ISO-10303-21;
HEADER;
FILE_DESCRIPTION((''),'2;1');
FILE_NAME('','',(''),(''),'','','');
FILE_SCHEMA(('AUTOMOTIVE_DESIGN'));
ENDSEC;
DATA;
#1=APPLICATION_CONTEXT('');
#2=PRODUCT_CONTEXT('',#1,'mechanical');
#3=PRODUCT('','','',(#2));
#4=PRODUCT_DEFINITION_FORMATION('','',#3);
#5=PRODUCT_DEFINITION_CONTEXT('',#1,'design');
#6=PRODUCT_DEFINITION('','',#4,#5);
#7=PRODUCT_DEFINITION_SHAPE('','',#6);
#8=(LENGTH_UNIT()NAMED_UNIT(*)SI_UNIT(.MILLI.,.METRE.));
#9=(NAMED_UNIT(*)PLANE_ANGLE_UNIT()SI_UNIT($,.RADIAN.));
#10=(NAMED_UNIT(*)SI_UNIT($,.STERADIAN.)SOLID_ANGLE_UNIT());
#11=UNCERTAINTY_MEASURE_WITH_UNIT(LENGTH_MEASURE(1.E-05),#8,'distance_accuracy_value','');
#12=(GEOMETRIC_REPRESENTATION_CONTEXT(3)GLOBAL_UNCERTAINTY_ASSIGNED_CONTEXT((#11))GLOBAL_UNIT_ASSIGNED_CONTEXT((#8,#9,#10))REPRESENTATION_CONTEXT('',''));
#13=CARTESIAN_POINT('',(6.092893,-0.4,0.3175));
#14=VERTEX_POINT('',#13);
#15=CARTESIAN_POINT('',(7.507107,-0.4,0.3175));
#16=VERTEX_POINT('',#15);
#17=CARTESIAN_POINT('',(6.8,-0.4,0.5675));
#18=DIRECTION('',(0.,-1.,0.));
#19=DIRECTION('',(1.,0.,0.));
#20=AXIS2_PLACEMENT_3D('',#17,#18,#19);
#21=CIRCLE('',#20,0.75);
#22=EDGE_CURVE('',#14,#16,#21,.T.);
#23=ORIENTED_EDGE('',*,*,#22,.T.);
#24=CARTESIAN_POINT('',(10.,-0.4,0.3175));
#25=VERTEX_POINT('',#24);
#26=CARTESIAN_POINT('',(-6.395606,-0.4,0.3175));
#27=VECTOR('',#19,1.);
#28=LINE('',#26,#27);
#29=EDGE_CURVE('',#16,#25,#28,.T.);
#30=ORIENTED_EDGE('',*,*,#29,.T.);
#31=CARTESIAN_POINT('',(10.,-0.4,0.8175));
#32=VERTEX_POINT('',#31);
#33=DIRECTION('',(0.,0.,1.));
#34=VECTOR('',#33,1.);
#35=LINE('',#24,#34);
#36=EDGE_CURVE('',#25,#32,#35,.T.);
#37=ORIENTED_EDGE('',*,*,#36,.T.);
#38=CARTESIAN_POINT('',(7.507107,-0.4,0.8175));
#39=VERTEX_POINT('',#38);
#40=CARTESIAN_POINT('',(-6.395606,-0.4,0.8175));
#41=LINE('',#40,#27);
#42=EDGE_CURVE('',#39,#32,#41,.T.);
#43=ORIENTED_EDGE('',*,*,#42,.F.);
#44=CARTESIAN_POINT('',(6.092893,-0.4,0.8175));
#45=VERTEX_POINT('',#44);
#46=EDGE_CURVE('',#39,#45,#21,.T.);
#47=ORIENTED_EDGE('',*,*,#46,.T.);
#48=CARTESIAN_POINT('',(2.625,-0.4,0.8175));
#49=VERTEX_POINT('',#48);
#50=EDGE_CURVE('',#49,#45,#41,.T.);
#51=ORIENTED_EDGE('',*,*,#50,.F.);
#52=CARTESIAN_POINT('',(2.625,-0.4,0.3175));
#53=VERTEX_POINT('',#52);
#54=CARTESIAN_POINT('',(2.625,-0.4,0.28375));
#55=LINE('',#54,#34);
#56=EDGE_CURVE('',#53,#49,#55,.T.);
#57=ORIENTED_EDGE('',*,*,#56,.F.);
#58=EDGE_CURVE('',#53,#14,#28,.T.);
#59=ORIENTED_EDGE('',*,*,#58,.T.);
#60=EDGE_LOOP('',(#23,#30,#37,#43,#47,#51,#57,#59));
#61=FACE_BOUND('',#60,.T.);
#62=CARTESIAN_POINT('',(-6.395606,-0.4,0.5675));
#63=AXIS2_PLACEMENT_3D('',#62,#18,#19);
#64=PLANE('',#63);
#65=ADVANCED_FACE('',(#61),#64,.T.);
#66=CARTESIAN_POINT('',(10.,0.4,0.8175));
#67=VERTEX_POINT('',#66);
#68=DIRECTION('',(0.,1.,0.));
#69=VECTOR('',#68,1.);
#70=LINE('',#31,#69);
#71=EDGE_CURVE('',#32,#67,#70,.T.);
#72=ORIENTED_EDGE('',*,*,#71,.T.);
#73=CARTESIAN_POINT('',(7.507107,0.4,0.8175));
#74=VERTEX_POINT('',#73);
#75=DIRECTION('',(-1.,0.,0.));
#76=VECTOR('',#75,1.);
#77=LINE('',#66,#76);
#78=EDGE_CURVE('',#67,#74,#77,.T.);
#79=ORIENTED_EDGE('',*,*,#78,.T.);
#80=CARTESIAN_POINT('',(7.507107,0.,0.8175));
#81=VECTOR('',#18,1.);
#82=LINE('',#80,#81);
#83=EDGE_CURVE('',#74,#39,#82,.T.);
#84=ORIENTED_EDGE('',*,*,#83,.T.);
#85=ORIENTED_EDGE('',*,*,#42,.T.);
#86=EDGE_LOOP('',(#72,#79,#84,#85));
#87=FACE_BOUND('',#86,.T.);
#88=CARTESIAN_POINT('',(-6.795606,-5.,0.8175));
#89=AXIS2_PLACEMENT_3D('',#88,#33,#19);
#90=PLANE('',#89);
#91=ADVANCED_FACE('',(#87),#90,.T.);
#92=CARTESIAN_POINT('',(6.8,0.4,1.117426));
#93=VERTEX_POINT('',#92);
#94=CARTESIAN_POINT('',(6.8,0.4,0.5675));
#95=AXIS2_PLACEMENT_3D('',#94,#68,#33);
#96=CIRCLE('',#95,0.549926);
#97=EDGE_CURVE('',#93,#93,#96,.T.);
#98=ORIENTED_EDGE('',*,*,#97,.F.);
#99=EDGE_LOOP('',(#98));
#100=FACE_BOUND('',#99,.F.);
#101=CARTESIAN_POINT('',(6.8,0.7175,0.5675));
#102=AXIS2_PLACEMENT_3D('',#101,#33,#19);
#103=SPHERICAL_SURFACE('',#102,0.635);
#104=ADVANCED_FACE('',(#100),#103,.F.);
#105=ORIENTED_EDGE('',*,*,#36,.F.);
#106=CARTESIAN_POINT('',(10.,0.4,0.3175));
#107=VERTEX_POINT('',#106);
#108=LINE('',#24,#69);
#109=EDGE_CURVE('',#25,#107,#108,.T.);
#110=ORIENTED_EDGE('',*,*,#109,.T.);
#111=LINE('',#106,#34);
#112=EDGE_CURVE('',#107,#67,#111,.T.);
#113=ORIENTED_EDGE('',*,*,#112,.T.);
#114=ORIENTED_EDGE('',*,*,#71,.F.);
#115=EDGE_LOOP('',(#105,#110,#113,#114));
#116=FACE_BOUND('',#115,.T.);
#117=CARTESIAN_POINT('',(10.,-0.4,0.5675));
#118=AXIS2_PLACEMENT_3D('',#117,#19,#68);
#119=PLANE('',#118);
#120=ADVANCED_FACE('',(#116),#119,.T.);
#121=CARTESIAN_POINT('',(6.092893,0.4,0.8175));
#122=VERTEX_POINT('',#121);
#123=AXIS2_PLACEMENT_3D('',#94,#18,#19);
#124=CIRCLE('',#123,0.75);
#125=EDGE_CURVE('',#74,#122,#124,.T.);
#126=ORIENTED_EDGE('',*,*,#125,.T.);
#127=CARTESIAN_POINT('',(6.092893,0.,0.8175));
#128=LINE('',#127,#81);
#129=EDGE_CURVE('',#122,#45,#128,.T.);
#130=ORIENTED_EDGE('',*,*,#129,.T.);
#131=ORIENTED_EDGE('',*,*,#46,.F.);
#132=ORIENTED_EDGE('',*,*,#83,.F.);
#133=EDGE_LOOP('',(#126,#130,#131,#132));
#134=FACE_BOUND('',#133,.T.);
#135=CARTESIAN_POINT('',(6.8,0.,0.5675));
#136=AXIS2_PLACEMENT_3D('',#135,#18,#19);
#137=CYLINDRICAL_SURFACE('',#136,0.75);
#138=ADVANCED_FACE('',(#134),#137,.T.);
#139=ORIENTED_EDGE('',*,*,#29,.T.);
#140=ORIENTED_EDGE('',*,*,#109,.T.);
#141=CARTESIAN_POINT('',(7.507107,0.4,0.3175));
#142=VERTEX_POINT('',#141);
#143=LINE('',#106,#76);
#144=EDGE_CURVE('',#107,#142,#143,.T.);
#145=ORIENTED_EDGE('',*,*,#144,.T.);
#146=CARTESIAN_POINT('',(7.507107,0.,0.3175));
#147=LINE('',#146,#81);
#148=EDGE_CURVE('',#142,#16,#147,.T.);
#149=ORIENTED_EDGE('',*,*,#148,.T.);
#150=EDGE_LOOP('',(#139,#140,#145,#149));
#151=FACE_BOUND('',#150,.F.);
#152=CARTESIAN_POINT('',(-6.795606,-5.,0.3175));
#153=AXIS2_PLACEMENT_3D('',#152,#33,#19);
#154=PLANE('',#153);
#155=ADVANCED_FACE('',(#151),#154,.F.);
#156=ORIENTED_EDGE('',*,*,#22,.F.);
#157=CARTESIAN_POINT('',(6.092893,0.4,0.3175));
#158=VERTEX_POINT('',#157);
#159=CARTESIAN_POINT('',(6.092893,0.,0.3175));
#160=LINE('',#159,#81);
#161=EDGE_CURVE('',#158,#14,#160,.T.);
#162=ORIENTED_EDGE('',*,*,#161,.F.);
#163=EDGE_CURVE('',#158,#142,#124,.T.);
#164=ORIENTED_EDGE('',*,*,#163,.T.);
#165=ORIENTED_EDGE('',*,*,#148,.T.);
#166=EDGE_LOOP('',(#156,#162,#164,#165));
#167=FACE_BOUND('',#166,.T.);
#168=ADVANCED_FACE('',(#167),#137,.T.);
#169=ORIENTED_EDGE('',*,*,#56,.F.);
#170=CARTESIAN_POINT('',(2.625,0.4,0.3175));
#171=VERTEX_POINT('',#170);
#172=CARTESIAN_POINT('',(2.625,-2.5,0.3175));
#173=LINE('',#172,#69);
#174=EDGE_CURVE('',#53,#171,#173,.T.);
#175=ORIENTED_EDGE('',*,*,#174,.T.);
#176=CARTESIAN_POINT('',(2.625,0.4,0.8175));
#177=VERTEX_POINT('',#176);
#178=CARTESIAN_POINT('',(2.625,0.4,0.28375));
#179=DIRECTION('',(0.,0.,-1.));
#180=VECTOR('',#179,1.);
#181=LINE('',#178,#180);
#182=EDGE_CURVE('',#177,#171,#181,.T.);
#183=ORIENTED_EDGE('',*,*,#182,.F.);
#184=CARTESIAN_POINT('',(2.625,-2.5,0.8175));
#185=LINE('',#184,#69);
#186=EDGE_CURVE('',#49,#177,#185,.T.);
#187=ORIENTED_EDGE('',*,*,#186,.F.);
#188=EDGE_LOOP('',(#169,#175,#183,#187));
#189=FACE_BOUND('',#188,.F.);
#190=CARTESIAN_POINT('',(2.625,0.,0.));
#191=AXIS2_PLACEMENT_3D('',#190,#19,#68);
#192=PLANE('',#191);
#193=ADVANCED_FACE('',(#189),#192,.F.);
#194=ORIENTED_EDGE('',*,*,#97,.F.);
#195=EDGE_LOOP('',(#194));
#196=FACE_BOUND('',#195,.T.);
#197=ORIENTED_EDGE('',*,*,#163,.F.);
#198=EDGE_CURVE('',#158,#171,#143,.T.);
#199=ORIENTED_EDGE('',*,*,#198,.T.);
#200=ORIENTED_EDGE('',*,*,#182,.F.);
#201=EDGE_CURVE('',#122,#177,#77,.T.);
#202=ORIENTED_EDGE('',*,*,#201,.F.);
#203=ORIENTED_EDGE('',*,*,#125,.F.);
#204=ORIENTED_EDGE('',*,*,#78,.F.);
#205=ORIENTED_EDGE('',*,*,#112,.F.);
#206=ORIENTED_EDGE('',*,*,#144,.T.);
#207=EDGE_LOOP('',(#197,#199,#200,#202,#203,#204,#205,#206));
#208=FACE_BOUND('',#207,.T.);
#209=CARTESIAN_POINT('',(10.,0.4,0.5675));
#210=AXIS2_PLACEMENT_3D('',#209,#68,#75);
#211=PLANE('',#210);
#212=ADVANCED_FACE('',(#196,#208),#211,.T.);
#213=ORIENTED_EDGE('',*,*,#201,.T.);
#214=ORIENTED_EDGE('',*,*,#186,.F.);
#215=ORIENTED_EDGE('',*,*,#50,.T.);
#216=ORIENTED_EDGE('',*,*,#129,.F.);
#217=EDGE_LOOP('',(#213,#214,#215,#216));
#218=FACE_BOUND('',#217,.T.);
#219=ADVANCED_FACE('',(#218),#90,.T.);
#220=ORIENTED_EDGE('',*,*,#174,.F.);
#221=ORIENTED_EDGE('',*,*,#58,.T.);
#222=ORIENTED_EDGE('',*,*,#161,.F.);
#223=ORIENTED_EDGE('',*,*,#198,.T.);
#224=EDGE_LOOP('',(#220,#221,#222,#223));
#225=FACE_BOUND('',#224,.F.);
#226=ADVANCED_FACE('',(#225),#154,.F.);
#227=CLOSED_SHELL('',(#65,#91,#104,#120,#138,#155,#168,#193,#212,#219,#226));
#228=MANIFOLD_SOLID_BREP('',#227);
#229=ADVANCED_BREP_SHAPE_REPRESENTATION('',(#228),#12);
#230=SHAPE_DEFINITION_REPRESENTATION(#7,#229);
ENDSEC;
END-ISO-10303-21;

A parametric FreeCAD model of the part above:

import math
import FreeCAD as App
import Part
import Sketcher
from FreeCAD import Vector
Q = App.Units.Quantity


def add_polygon(sketch, points):
    """Adds a closed chain of lines whose ends are joined by coincident constraints."""
    first, n = sketch.GeometryCount, len(points)
    for a, b in zip(points, points[1:] + points[:1]):
        sketch.addGeometry(Part.LineSegment(App.Vector(*a, 0), App.Vector(*b, 0)), False)
    for i in range(n):
        sketch.addConstraint(Sketcher.Constraint("Coincident", first + i, 2, first + (i + 1) % n, 1))

doc = App.newDocument("Part")
params = doc.addObject("Spreadsheet::Sheet", "Params")
for row, (alias, value) in enumerate([
    ("sketch1_height", "10 mm"),
    ("sketch1_width", "0.8 mm"),
    ("pad1_length", "0.5 mm"),
    ("sketch2_diameter", "1.5 mm"),
    ("pad2_length", "0.5 mm"),
    ("sketch3_diameter", "1.5 mm"),
    ("pad3_length", "0.5 mm"),
    ("sketch4_diameter", "1.5 mm"),
    ("pad4_length", "0.5 mm"),
    ("groove_angle", "360 deg"),
    ("groove2_angle", "360 deg"),
    ("groove3_angle", "360 deg"),
    ("sketch8_diameter", "1.5 mm"),
    ("pad5_length", "0.8 mm"),
    ("groove4_angle", "360 deg"),
    ("sketch10_width", "20 mm"),
], start=1):
    params.set(f"A{row}", alias)
    params.set(f"B{row}", "=" + value)
    params.setAlias(f"B{row}", alias)

body = doc.addObject("PartDesign::Body", "Body")

# Sketch on XY plane
sketch1 = body.newObject("Sketcher::SketchObject", "Sketch")
sketch1.AttachmentSupport = (doc.getObject("XY_Plane"), [""])
sketch1.MapMode = "FlatFace"
sketch1.AttachmentOffset = App.Placement(Vector(0, 0, 0.5675), App.Rotation())
add_polygon(sketch1, [(-7.2, 5), (-7.2, -5), (-6.4, -5), (-6.4, -0.4), (10, -0.4), (10, 0.4), (-6.4, 0.4), (-6.4, 5)])  # lines 0-7
sketch1.addConstraint(Sketcher.Constraint("Vertical", 0))
sketch1.addConstraint(Sketcher.Constraint("Horizontal", 1))
sketch1.addConstraint(Sketcher.Constraint("Vertical", 2))
sketch1.addConstraint(Sketcher.Constraint("Horizontal", 3))
sketch1.addConstraint(Sketcher.Constraint("Vertical", 4))
sketch1.addConstraint(Sketcher.Constraint("Horizontal", 5))
sketch1.addConstraint(Sketcher.Constraint("Vertical", 6))
sketch1.addConstraint(Sketcher.Constraint("Horizontal", 7))
sketch1.addConstraint(Sketcher.Constraint("Symmetric", 2, 2, 5, 2, -1))
sketch1.addConstraint(Sketcher.Constraint("Equal", 7, 4))
sketch1.addConstraint(Sketcher.Constraint("Equal", 2, 6))
sketch1.addConstraint(Sketcher.Constraint("DistanceY", 0, 2, 0, 1, Q("10 mm")))
sketch1.addConstraint(Sketcher.Constraint("DistanceX", 1, 1, 1, 2, Q("0.8 mm")))
sketch1.addConstraint(Sketcher.Constraint("DistanceX", -1, 1, 3, 2, Q("10 mm")))
sketch1.addConstraint(Sketcher.Constraint("DistanceX", 3, 1, 3, 2, Q("16.395606 mm")))
sketch1.setExpression("Constraints[19]", "Params.sketch1_height")
sketch1.setExpression("Constraints[20]", "Params.sketch1_width")
pad1 = body.newObject("PartDesign::Pad", "Pad")
pad1.Profile = sketch1
pad1.setExpression("Length", "Params.pad1_length")
pad1.Midplane = True

# Sketch on XY plane
sketch2 = body.newObject("Sketcher::SketchObject", "Sketch001")
sketch2.AttachmentSupport = (doc.getObject("XY_Plane"), [""])
sketch2.MapMode = "FlatFace"
sketch2.AttachmentOffset = App.Placement(Vector(0, 0, 0.5675), App.Rotation())
sketch2.addGeometry(Part.Circle(Vector(0, 0, 0), Vector(0, 0, 1), 0.8), False)
sketch2.addConstraint(Sketcher.Constraint("Coincident", 0, 3, -1, 1))
sketch2.addConstraint(Sketcher.Constraint("Diameter", 0, Q("1.5 mm")))
sketch2.setExpression("Constraints[1]", "Params.sketch2_diameter")
pad2 = body.newObject("PartDesign::Pad", "Pad001")
pad2.Profile = sketch2
pad2.setExpression("Length", "Params.pad2_length")
pad2.Midplane = True

# Sketch on XY plane
sketch3 = body.newObject("Sketcher::SketchObject", "Sketch002")
sketch3.AttachmentSupport = (doc.getObject("XY_Plane"), [""])
sketch3.MapMode = "FlatFace"
sketch3.AttachmentOffset = App.Placement(Vector(0, 0, 0.5675), App.Rotation())
sketch3.addGeometry(Part.Circle(Vector(-6.8, 5, 0), Vector(0, 0, 1), 0.8), False)
sketch3.addConstraint(Sketcher.Constraint("Diameter", 0, Q("1.5 mm")))
sketch3.addConstraint(Sketcher.Constraint("DistanceY", -1, 1, 0, 3, Q("5 mm")))
sketch3.addConstraint(Sketcher.Constraint("DistanceX", 0, 3, -1, 1, Q("6.795606 mm")))
sketch3.setExpression("Constraints[0]", "Params.sketch3_diameter")
pad3 = body.newObject("PartDesign::Pad", "Pad002")
pad3.Profile = sketch3
pad3.setExpression("Length", "Params.pad3_length")
pad3.Midplane = True

# Sketch on XY plane
sketch4 = body.newObject("Sketcher::SketchObject", "Sketch003")
sketch4.AttachmentSupport = (doc.getObject("XY_Plane"), [""])
sketch4.MapMode = "FlatFace"
sketch4.AttachmentOffset = App.Placement(Vector(0, 0, 0.5675), App.Rotation())
sketch4.addGeometry(Part.Circle(Vector(-6.8, -5, 0), Vector(0, 0, 1), 0.8), False)
sketch4.addConstraint(Sketcher.Constraint("Diameter", 0, Q("1.5 mm")))
sketch4.addConstraint(Sketcher.Constraint("DistanceY", 0, 3, -1, 1, Q("5 mm")))
sketch4.addConstraint(Sketcher.Constraint("DistanceX", 0, 3, -1, 1, Q("6.795606 mm")))
sketch4.setExpression("Constraints[0]", "Params.sketch4_diameter")
pad4 = body.newObject("PartDesign::Pad", "Pad003")
pad4.Profile = sketch4
pad4.setExpression("Length", "Params.pad4_length")
pad4.Midplane = True

# Sketch on XZ plane
sketch5 = body.newObject("Sketcher::SketchObject", "Sketch004")
sketch5.AttachmentSupport = (doc.getObject("XZ_Plane"), [""])
sketch5.MapMode = "FlatFace"
sketch5.addGeometry(Part.ArcOfCircle(Part.Circle(Vector(0, 0, 0), Vector(0, 0, 1), 0.6), math.radians(-90), math.radians(90)), False)
sketch5.addGeometry(Part.LineSegment(Vector(0, 0.6, 0), Vector(0, -0.6, 0)), False)
sketch5.addConstraint(Sketcher.Constraint("Coincident", 0, 1, 1, 2))
sketch5.addConstraint(Sketcher.Constraint("Coincident", 1, 1, 0, 2))
sketch5.addConstraint(Sketcher.Constraint("Vertical", 1))
sketch5.addConstraint(Sketcher.Constraint("Coincident", 0, 3, -1, 1))
sketch5.addConstraint(Sketcher.Constraint("PointOnObject", 0, 1, -2))
sketch5.addConstraint(Sketcher.Constraint("Radius", 0, Q("0.635 mm")))
groove = body.newObject("PartDesign::Groove", "Groove")
groove.Profile = sketch5
groove.ReferenceAxis = (sketch5, ["V_Axis"])
groove.setExpression("Angle", "Params.groove_angle")

# Sketch on XZ plane
sketch6 = body.newObject("Sketcher::SketchObject", "Sketch005")
sketch6.AttachmentSupport = (doc.getObject("XZ_Plane"), [""])
sketch6.MapMode = "FlatFace"
sketch6.AttachmentOffset = App.Placement(Vector(0, 0, -5), App.Rotation())
sketch6.addGeometry(Part.ArcOfCircle(Part.Circle(Vector(-6.8, 1.1, 0), Vector(0, 0, 1), 0.6), math.radians(-90), math.radians(90)), False)
sketch6.addGeometry(Part.LineSegment(Vector(-6.8, 1.8, 0), Vector(-6.8, 0.5, 0)), False)
sketch6.addGeometry(Part.LineSegment(Vector(-6.8, 0.5, 0), Vector(-6.8, 1.8, 0)), True)  # axis
sketch6.addConstraint(Sketcher.Constraint("Coincident", 0, 1, 1, 2))
sketch6.addConstraint(Sketcher.Constraint("Coincident", 1, 1, 0, 2))
sketch6.addConstraint(Sketcher.Constraint("Vertical", 1))
sketch6.addConstraint(Sketcher.Constraint("Vertical", 2))
sketch6.addConstraint(Sketcher.Constraint("Coincident", 2, 1, 0, 1))
sketch6.addConstraint(Sketcher.Constraint("Equal", 1, 2))
sketch6.addConstraint(Sketcher.Constraint("Radius", 0, Q("0.635 mm")))
sketch6.addConstraint(Sketcher.Constraint("DistanceY", -1, 1, 0, 1, Q("0.5 mm")))
sketch6.addConstraint(Sketcher.Constraint("DistanceX", 0, 3, -1, 1, Q("6.795606 mm")))
sketch6.addConstraint(Sketcher.Constraint("DistanceX", 0, 1, -1, 1, Q("6.795606 mm")))
groove2 = body.newObject("PartDesign::Groove", "Groove001")
groove2.Profile = sketch6
groove2.ReferenceAxis = (sketch6, ["Axis0"])
groove2.setExpression("Angle", "Params.groove2_angle")

# Sketch on XZ plane
sketch7 = body.newObject("Sketcher::SketchObject", "Sketch006")
sketch7.AttachmentSupport = (doc.getObject("XZ_Plane"), [""])
sketch7.MapMode = "FlatFace"
sketch7.AttachmentOffset = App.Placement(Vector(0, 0, 5), App.Rotation())
sketch7.addGeometry(Part.ArcOfCircle(Part.Circle(Vector(-6.8, 1.1, 0), Vector(0, 0, 1), 0.6), math.radians(-90), math.radians(90)), False)
sketch7.addGeometry(Part.LineSegment(Vector(-6.8, 1.8, 0), Vector(-6.8, 0.5, 0)), False)
sketch7.addGeometry(Part.LineSegment(Vector(-6.8, 0.5, 0), Vector(-6.8, 1.8, 0)), True)  # axis
sketch7.addConstraint(Sketcher.Constraint("Coincident", 0, 1, 1, 2))
sketch7.addConstraint(Sketcher.Constraint("Coincident", 1, 1, 0, 2))
sketch7.addConstraint(Sketcher.Constraint("Vertical", 1))
sketch7.addConstraint(Sketcher.Constraint("Vertical", 2))
sketch7.addConstraint(Sketcher.Constraint("Coincident", 2, 1, 0, 1))
sketch7.addConstraint(Sketcher.Constraint("Equal", 1, 2))
sketch7.addConstraint(Sketcher.Constraint("Radius", 0, Q("0.635 mm")))
sketch7.addConstraint(Sketcher.Constraint("DistanceY", -1, 1, 0, 1, Q("0.5 mm")))
sketch7.addConstraint(Sketcher.Constraint("DistanceX", 0, 3, -1, 1, Q("6.795606 mm")))
sketch7.addConstraint(Sketcher.Constraint("DistanceX", 0, 1, -1, 1, Q("6.795606 mm")))
groove3 = body.newObject("PartDesign::Groove", "Groove002")
groove3.Profile = sketch7
groove3.ReferenceAxis = (sketch7, ["Axis0"])
groove3.setExpression("Angle", "Params.groove3_angle")

# Sketch on XZ plane
sketch8 = body.newObject("Sketcher::SketchObject", "Sketch007")
sketch8.AttachmentSupport = (doc.getObject("XZ_Plane"), [""])
sketch8.MapMode = "FlatFace"
sketch8.addGeometry(Part.Circle(Vector(6.8, 0.6, 0), Vector(0, 0, 1), 0.8), False)
sketch8.addConstraint(Sketcher.Constraint("Diameter", 0, Q("1.5 mm")))
sketch8.addConstraint(Sketcher.Constraint("DistanceX", -1, 1, 0, 3, Q("6.8 mm")))
sketch8.addConstraint(Sketcher.Constraint("DistanceY", -1, 1, 0, 3, Q("0.5675 mm")))
sketch8.setExpression("Constraints[0]", "Params.sketch8_diameter")
pad5 = body.newObject("PartDesign::Pad", "Pad004")
pad5.Profile = sketch8
pad5.setExpression("Length", "Params.pad5_length")
pad5.Midplane = True

# Sketch on XZ plane
sketch9 = body.newObject("Sketcher::SketchObject", "Sketch008")
sketch9.AttachmentSupport = (doc.getObject("XZ_Plane"), [""])
sketch9.MapMode = "FlatFace"
sketch9.AttachmentOffset = App.Placement(Vector(0, 0, -0.7175), App.Rotation())
sketch9.addGeometry(Part.ArcOfCircle(Part.Circle(Vector(6.8, 0.6, 0), Vector(0, 0, 1), 0.6), math.radians(-90), math.radians(90)), False)
sketch9.addGeometry(Part.LineSegment(Vector(6.8, 1.2, 0), Vector(6.8, -0.1, 0)), False)
sketch9.addGeometry(Part.LineSegment(Vector(6.8, -0.1, 0), Vector(6.8, 1.2, 0)), True)  # axis
sketch9.addConstraint(Sketcher.Constraint("Coincident", 0, 1, 1, 2))
sketch9.addConstraint(Sketcher.Constraint("Coincident", 1, 1, 0, 2))
sketch9.addConstraint(Sketcher.Constraint("Vertical", 1))
sketch9.addConstraint(Sketcher.Constraint("Vertical", 2))
sketch9.addConstraint(Sketcher.Constraint("Coincident", 2, 1, 0, 1))
sketch9.addConstraint(Sketcher.Constraint("Equal", 1, 2))
sketch9.addConstraint(Sketcher.Constraint("Radius", 0, Q("0.635 mm")))
sketch9.addConstraint(Sketcher.Constraint("DistanceX", -1, 1, 0, 3, Q("6.8 mm")))
sketch9.addConstraint(Sketcher.Constraint("DistanceX", -1, 1, 0, 1, Q("6.8 mm")))
sketch9.addConstraint(Sketcher.Constraint("DistanceY", -1, 1, 0, 3, Q("0.5675 mm")))
groove4 = body.newObject("PartDesign::Groove", "Groove003")
groove4.Profile = sketch9
groove4.ReferenceAxis = (sketch9, ["Axis0"])
groove4.setExpression("Angle", "Params.groove4_angle")

# Sketch on YZ plane
sketch10 = body.newObject("Sketcher::SketchObject", "Sketch009")
sketch10.AttachmentSupport = (doc.getObject("YZ_Plane"), [""])
sketch10.MapMode = "FlatFace"
sketch10.AttachmentOffset = App.Placement(Vector(0, 0, 2.625), App.Rotation())
add_polygon(sketch10, [(-10, 10), (-10, -10), (10, -10), (10, 10)])  # lines 0-3
sketch10.addConstraint(Sketcher.Constraint("Vertical", 0))
sketch10.addConstraint(Sketcher.Constraint("Horizontal", 1))
sketch10.addConstraint(Sketcher.Constraint("Vertical", 2))
sketch10.addConstraint(Sketcher.Constraint("Horizontal", 3))
sketch10.addConstraint(Sketcher.Constraint("Symmetric", 0, 2, 2, 2, -1, 1))
sketch10.addConstraint(Sketcher.Constraint("Equal", 3, 0))
sketch10.addConstraint(Sketcher.Constraint("DistanceX", 1, 1, 1, 2, Q("20 mm")))
sketch10.setExpression("Constraints[10]", "Params.sketch10_width")
pocket1 = body.newObject("PartDesign::Pocket", "Pocket")
pocket1.Profile = sketch10
pocket1.Type = "ThroughAll"

doc.recompute()
